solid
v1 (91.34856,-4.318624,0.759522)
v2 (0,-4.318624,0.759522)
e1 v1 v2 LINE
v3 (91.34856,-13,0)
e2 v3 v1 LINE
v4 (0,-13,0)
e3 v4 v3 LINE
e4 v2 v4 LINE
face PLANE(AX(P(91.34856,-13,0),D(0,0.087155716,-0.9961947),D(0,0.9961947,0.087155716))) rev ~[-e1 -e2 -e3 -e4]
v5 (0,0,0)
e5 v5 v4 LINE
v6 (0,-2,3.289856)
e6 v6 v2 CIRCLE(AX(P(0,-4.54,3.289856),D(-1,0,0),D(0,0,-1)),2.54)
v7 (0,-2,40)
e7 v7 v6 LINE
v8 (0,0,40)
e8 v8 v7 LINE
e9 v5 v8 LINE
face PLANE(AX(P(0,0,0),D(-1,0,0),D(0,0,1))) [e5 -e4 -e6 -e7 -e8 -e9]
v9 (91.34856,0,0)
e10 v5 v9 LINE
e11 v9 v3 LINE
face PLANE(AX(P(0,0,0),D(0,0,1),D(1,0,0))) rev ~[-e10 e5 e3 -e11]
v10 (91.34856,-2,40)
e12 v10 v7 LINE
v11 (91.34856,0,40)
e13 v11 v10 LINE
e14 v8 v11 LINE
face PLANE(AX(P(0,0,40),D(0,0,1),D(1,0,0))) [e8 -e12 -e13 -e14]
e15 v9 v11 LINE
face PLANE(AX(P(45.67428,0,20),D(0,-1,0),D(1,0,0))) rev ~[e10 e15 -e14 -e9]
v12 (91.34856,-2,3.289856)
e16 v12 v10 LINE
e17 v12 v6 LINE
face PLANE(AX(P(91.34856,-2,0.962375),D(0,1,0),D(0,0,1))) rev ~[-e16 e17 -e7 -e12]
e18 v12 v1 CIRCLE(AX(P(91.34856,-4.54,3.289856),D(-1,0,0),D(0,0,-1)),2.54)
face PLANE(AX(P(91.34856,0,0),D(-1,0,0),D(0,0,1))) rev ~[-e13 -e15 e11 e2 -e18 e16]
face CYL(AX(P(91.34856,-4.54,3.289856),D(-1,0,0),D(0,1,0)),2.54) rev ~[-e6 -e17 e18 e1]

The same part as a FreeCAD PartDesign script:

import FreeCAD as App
import Part
import Sketcher
Q = App.Units.Quantity


def edges_at(feature, points):
    """Names of the edges that pass closest to the given points."""
    edges = feature.Shape.Edges
    near = lambda p: min(range(len(edges)), key=lambda i: edges[i].distToShape(Part.Vertex(*p))[0])
    return sorted({f"Edge{near(p) + 1}" for p in points})


def add_polygon(sketch, points):
    """Adds a closed chain of lines whose ends are joined by coincident constraints."""
    first, n = sketch.GeometryCount, len(points)
    for a, b in zip(points, points[1:] + points[:1]):
        sketch.addGeometry(Part.LineSegment(App.Vector(*a, 0), App.Vector(*b, 0)), False)
    for i in range(n):
        sketch.addConstraint(Sketcher.Constraint("Coincident", first + i, 2, first + (i + 1) % n, 1))

doc = App.newDocument("Part")
body = doc.addObject("PartDesign::Body", "Body")

sketch1 = body.newObject("Sketcher::SketchObject", "Sketch")
sketch1.AttachmentSupport = (doc.getObject("XZ_Plane"), [""])
sketch1.MapMode = "FlatFace"
add_polygon(sketch1, [(0, 40), (0, 0), (91, 0), (91, 40)])
sketch1.addConstraint(Sketcher.Constraint("Vertical", 0))
sketch1.addConstraint(Sketcher.Constraint("Horizontal", 1))
sketch1.addConstraint(Sketcher.Constraint("Vertical", 2))
sketch1.addConstraint(Sketcher.Constraint("Horizontal", 3))
sketch1.addConstraint(Sketcher.Constraint("Coincident", 0, 2, -1, 1))
sketch1.addConstraint(Sketcher.Constraint("DistanceY", 0, 2, 0, 1, Q("40 mm")))
sketch1.addConstraint(Sketcher.Constraint("DistanceX", 1, 1, 1, 2, Q("91.34856 mm")))
pad1 = body.newObject("PartDesign::Pad", "Pad")
pad1.Profile = sketch1
pad1.Length = 13

sketch2 = body.newObject("Sketcher::SketchObject", "Sketch001")
sketch2.AttachmentSupport = (doc.getObject("YZ_Plane"), [""])
sketch2.MapMode = "FlatFace"
sketch2.AttachmentOffset = App.Placement(App.Vector(0, 0, 91.34856), App.Rotation())
add_polygon(sketch2, [(-13, 40), (-13, 0), (-2, 1), (-2, 40)])
sketch2.addConstraint(Sketcher.Constraint("Vertical", 0))
sketch2.addConstraint(Sketcher.Constraint("Vertical", 2))
sketch2.addConstraint(Sketcher.Constraint("Horizontal", 3))
sketch2.addConstraint(Sketcher.Constraint("PointOnObject", 0, 2, -1))
sketch2.addConstraint(Sketcher.Constraint("DistanceX", 3, 2, 3, 1, Q("11 mm")))
sketch2.addConstraint(Sketcher.Constraint("DistanceY", 0, 2, 0, 1, Q("40 mm")))
sketch2.addConstraint(Sketcher.Constraint("Angle", 1, Q("4.999998 deg")))
sketch2.addConstraint(Sketcher.Constraint("DistanceX", 0, 2, -1, 1, Q("13 mm")))
pocket1 = body.newObject("PartDesign::Pocket", "Pocket")
pocket1.Profile = sketch2
pocket1.Length = 127
doc.recompute()

fillet = body.newObject("PartDesign::Fillet", "Fillet")
fillet.Base = (pocket1, edges_at(pocket1, [(45.674, -2, 0.962)]))
fillet.Radius = 2.54

doc.recompute()
